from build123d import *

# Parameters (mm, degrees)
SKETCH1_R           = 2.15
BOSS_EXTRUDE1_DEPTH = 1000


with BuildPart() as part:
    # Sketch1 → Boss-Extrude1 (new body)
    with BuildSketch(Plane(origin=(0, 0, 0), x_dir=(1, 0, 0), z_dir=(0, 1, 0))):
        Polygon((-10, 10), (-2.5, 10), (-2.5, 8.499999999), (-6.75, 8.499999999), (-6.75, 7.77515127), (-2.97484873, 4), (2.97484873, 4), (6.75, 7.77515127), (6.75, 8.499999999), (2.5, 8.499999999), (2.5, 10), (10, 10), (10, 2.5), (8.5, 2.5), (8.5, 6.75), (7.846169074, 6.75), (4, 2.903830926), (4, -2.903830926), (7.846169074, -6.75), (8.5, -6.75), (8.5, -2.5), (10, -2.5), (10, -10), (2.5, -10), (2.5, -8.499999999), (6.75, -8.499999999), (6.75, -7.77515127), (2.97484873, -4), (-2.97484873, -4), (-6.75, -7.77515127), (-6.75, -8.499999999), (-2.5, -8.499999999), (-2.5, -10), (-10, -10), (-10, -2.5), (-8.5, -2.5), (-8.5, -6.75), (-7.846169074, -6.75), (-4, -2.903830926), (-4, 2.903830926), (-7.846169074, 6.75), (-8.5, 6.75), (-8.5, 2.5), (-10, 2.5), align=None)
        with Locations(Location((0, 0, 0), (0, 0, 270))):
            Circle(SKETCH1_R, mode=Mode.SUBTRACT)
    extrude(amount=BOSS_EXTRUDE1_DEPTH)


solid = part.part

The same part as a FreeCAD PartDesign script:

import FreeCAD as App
import Part
import Sketcher

V = App.Vector


def add_polygon(sketch, points):
    """Adds a closed chain of lines whose ends are joined by coincident constraints."""
    first, n = sketch.GeometryCount, len(points)
    for a, b in zip(points, points[1:] + points[:1]):
        sketch.addGeometry(Part.LineSegment(App.Vector(*a, 0), App.Vector(*b, 0)), False)
    for i in range(n):
        sketch.addConstraint(Sketcher.Constraint("Coincident", first + i, 2, first + (i + 1) % n, 1))

doc = App.newDocument("Part")
body = doc.addObject("PartDesign::Body", "Body")

# Sketch on XZ plane
sketch1 = doc.addObject("Sketcher::SketchObject", "Sketch")
body.addObject(sketch1)
sketch1.AttachmentSupport = (doc.XZ_Plane, [""])
sketch1.MapMode = "FlatFace"
add_polygon(sketch1, [(-2.5, -10), (-10, -10), (-10, -2.5), (-8.5, -2.5), (-8.5, -6.8), (-7.8, -6.8), (-4, -2.9), (-4, 2.9), (-7.8, 6.8), (-8.5, 6.8), (-8.5, 2.5), (-10, 2.5), (-10, 10), (-2.5, 10), (-2.5, 8.5), (-6.8, 8.5), (-6.8, 7.8), (-3, 4), (3, 4), (6.8, 7.8), (6.8, 8.5), (2.5, 8.5), (2.5, 10), (10, 10), (10, 2.5), (8.5, 2.5), (8.5, 6.8), (7.8, 6.8), (4, 2.9), (4, -2.9), (7.8, -6.8), (8.5, -6.8), (8.5, -2.5), (10, -2.5), (10, -10), (2.5, -10), (2.5, -8.5), (6.8, -8.5), (6.8, -7.8), (3, -4), (-3, -4), (-6.8, -7.8), (-6.8, -8.5), (-2.5, -8.5)])  # lines 0-43
sketch1.addGeometry(Part.Circle(V(0, 0, 0), V(0, 0, 1), 2.1), False)  # 44
sketch1.addConstraint([
    Sketcher.Constraint("Horizontal", 0),
    Sketcher.Constraint("Vertical", 1),
    Sketcher.Constraint("Horizontal", 2),
    Sketcher.Constraint("Vertical", 3),
    Sketcher.Constraint("Horizontal", 4),
    Sketcher.Constraint("Vertical", 6),
    Sketcher.Constraint("Horizontal", 8),
    Sketcher.Constraint("Vertical", 9),
    Sketcher.Constraint("Horizontal", 10),
    Sketcher.Constraint("Vertical", 11),
    Sketcher.Constraint("Horizontal", 12),
    Sketcher.Constraint("Vertical", 13),
    Sketcher.Constraint("Horizontal", 14),
    Sketcher.Constraint("Vertical", 15),
    Sketcher.Constraint("Horizontal", 17),
    Sketcher.Constraint("Vertical", 19),
    Sketcher.Constraint("Horizontal", 20),
    Sketcher.Constraint("Vertical", 21),
    Sketcher.Constraint("Horizontal", 22),
    Sketcher.Constraint("Vertical", 23),
    Sketcher.Constraint("Horizontal", 24),
    Sketcher.Constraint("Vertical", 25),
    Sketcher.Constraint("Horizontal", 26),
    Sketcher.Constraint("Vertical", 28),
    Sketcher.Constraint("Horizontal", 30),
    Sketcher.Constraint("Vertical", 31),
    Sketcher.Constraint("Horizontal", 32),
    Sketcher.Constraint("Vertical", 33),
    Sketcher.Constraint("Horizontal", 34),
    Sketcher.Constraint("Vertical", 35),
    Sketcher.Constraint("Horizontal", 36),
    Sketcher.Constraint("Vertical", 37),
    Sketcher.Constraint("Horizontal", 39),
    Sketcher.Constraint("Vertical", 41),
    Sketcher.Constraint("Horizontal", 42),
    Sketcher.Constraint("Vertical", 43),
    Sketcher.Constraint("Coincident", 44, 3, -1, 1),
    Sketcher.Constraint("Symmetric", 0, 2, 22, 2, -1, 1),
    Sketcher.Constraint("Symmetric", 2, 2, 24, 2, -1, 1),
    Sketcher.Constraint("Symmetric", 4, 2, 26, 2, -1, 1),
    Sketcher.Constraint("Symmetric", 5, 2, 27, 2, -1, 1),
    Sketcher.Constraint("Symmetric", 7, 2, 29, 2, -1, 1),
    Sketcher.Constraint("Symmetric", 9, 2, 31, 2, -1, 1),
    Sketcher.Constraint("Symmetric", 11, 2, 33, 2, -1, 1),
    Sketcher.Constraint("Symmetric", 13, 2, 35, 2, -1, 1),
    Sketcher.Constraint("Symmetric", 15, 2, 37, 2, -1, 1),
    Sketcher.Constraint("Symmetric", 16, 2, 38, 2, -1, 1),
    Sketcher.Constraint("Symmetric", 18, 2, 40, 2, -1, 1),
    Sketcher.Constraint("Symmetric", 20, 2, 42, 2, -1, 1),
    Sketcher.Constraint("Symmetric", 15, 2, 18, 2, -2),
    Sketcher.Constraint("Symmetric", 13, 2, 20, 2, -2),
    Sketcher.Constraint("Symmetric", 11, 2, 22, 2, -2),
    Sketcher.Constraint("Symmetric", 9, 2, 24, 2, -2),
    Sketcher.Constraint("Symmetric", 7, 2, 26, 2, -2),
    Sketcher.Constraint("Perpendicular", 5, 7),
    Sketcher.Constraint("Parallel", 7, 16),
    Sketcher.Constraint("Perpendicular", 16, 18),
    Sketcher.Constraint("Perpendicular", 27, 29),
    Sketcher.Constraint("Perpendicular", 38, 40),
    Sketcher.Constraint("Horizontal", 6, 2, 27, 2),
    Sketcher.Constraint("Equal", 34, 1),
    Sketcher.Constraint("Equal", 42, 3),
    Sketcher.Constraint("Equal", 32, 13),
    Sketcher.Constraint("Diameter", 44, 4.3),
    Sketcher.Constraint("DistanceX", 0, 2, 0, 1, 7.5),
    Sketcher.Constraint("DistanceX", 2, 1, 2, 2, 1.5),
    Sketcher.Constraint("DistanceX", 0, 2, -1, 1, 10.0),
    Sketcher.Constraint("DistanceY", 0, 2, -1, 1, 10.0),
    Sketcher.Constraint("DistanceX", 5, 2, -1, 1, 4.0),
    Sketcher.Constraint("DistanceY", -1, 1, 16, 2, 4.0),
    Sketcher.Constraint("DistanceX", 14, 2, 14, 1, 4.25),
    Sketcher.Constraint("DistanceX", 4, 1, 4, 2, 0.653831),
    Sketcher.Constraint("DistanceY", 15, 2, 15, 1, 0.724849),
])
pad1 = doc.addObject("PartDesign::Pad", "Pad")
body.addObject(pad1)
pad1.Profile = sketch1
pad1.Length = 1000
pad1.Reversed = True

doc.recompute()
